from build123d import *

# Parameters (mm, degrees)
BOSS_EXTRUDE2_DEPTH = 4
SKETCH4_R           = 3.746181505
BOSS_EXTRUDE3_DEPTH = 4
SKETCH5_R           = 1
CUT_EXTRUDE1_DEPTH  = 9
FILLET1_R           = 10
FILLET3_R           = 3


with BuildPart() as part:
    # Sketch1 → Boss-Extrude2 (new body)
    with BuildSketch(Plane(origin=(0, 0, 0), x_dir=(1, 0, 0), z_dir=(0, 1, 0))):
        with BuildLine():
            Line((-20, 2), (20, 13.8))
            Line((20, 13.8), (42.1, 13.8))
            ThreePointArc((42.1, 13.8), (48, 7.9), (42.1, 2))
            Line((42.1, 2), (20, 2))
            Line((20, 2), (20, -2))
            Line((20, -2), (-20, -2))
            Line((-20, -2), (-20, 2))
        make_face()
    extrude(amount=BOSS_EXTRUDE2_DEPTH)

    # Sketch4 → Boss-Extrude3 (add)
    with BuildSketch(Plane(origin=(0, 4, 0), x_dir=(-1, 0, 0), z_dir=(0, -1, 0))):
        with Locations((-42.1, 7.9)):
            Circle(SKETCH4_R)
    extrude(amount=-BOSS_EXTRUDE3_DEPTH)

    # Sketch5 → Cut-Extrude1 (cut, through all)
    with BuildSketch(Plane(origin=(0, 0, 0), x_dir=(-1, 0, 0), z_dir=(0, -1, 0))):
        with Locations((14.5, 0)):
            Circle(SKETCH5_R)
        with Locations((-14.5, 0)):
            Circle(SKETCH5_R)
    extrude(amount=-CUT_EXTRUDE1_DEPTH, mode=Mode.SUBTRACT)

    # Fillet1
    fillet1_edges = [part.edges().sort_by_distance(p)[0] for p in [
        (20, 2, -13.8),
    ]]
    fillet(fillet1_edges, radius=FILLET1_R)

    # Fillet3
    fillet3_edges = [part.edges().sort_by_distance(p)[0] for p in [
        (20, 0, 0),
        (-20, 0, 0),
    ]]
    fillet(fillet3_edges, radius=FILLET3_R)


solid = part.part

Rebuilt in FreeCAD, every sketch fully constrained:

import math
import FreeCAD as App
import Part
import Sketcher

V = App.Vector
Q = App.Units.Quantity


def edges_at(feature, points):
    """Names of the edges that pass closest to the given points."""
    edges = feature.Shape.Edges
    near = lambda p: min(range(len(edges)), key=lambda i: edges[i].distToShape(Part.Vertex(*p))[0])
    return sorted({f"Edge{near(p) + 1}" for p in points})

doc = App.newDocument("Part")
body = doc.addObject("PartDesign::Body", "Body")

sketch1 = body.newObject("Sketcher::SketchObject", "Sketch")
sketch1.AttachmentSupport = (doc.getObject("XZ_Plane"), [""])
sketch1.MapMode = "FlatFace"
sketch1.addGeometry([
    Part.LineSegment(V(20, -13.8, 0), V(-20, -2, 0)),
    Part.LineSegment(V(-20, -2, 0), V(-20, 2, 0)),
    Part.LineSegment(V(-20, 2, 0), V(20, 2, 0)),
    Part.LineSegment(V(20, 2, 0), V(20, -2, 0)),
    Part.LineSegment(V(20, -2, 0), V(42.1, -2, 0)),
    Part.ArcOfCircle(Part.Circle(V(42.1, -7.9, 0), V(0, 0, 1), 5.9), math.radians(-90), math.radians(90)),
    Part.LineSegment(V(42.1, -13.8, 0), V(20, -13.8, 0)),
], False)
sketch1.addConstraint([
    Sketcher.Constraint("Coincident", 0, 2, 1, 1),
    Sketcher.Constraint("Coincident", 1, 2, 2, 1),
    Sketcher.Constraint("Coincident", 2, 2, 3, 1),
    Sketcher.Constraint("Coincident", 3, 2, 4, 1),
    Sketcher.Constraint("Tangent", 4, 2, 5, 2),
    Sketcher.Constraint("Tangent", 5, 1, 6, 1),
    Sketcher.Constraint("Coincident", 6, 2, 0, 1),
    Sketcher.Constraint("Vertical", 1),
    Sketcher.Constraint("Horizontal", 2),
    Sketcher.Constraint("Vertical", 3),
    Sketcher.Constraint("Horizontal", 4),
    Sketcher.Constraint("Horizontal", 6),
    Sketcher.Constraint("Symmetric", 0, 2, 2, 2, -1, 1),
    Sketcher.Constraint("Horizontal", 0, 2, 3, 2),
    Sketcher.Constraint("Vertical", 3, 2, 6, 2),
    Sketcher.Constraint("Radius", 5, Q("5.9 mm")),
    Sketcher.Constraint("DistanceX", 2, 1, 2, 2, Q("40 mm")),
    Sketcher.Constraint("DistanceY", 1, 1, 1, 2, Q("4 mm")),
    Sketcher.Constraint("DistanceX", 4, 1, 4, 2, Q("22.1 mm")),
])
pad1 = body.newObject("PartDesign::Pad", "Pad")
pad1.Profile = sketch1
pad1.Length = 4
pad1.Reversed = True

sketch2 = body.newObject("Sketcher::SketchObject", "Sketch001")
sketch2.AttachmentSupport = (doc.getObject("XZ_Plane"), [""])
sketch2.MapMode = "FlatFace"
sketch2.AttachmentOffset = App.Placement(V(0, 0, -4), App.Rotation())
sketch2.addGeometry(Part.Circle(V(42.1, -7.9, 0), V(0, 0, 1), 3.7), False)
sketch2.addConstraint([
    Sketcher.Constraint("DistanceX", -1, 1, 0, 3, Q("42.1 mm")),
    Sketcher.Constraint("DistanceY", 0, 3, -1, 1, Q("7.9 mm")),
    Sketcher.Constraint("Diameter", 0, Q("7.492363 mm")),
])
pad2 = body.newObject("PartDesign::Pad", "Pad001")
pad2.Profile = sketch2
pad2.Length = 4
pad2.Reversed = True

sketch3 = body.newObject("Sketcher::SketchObject", "Sketch002")
sketch3.AttachmentSupport = (doc.getObject("XZ_Plane"), [""])
sketch3.MapMode = "FlatFace"
sketch3.addGeometry([
    Part.Circle(V(-14.5, 0, 0), V(0, 0, 1), 1),
    Part.Circle(V(14.5, 0, 0), V(0, 0, 1), 1),
], False)
sketch3.addConstraint([
    Sketcher.Constraint("Equal", 0, 1),
    Sketcher.Constraint("Symmetric", 0, 3, 1, 3, -1, 1),
    Sketcher.Constraint("PointOnObject", 0, 3, -1),
    Sketcher.Constraint("Diameter", 0, Q("2 mm")),
    Sketcher.Constraint("DistanceX", 0, 3, 1, 3, Q("29 mm")),
])
pocket1 = body.newObject("PartDesign::Pocket", "Pocket")
pocket1.Profile = sketch3
pocket1.Type = "ThroughAll"
doc.recompute()

fillet = body.newObject("PartDesign::Fillet", "Fillet")
fillet.Base = (pocket1, edges_at(pocket1, [(20, 2, -13.8)]))
fillet.Radius = 10
doc.recompute()

fillet2 = body.newObject("PartDesign::Fillet", "Fillet001")
fillet2.Base = (fillet, edges_at(fillet, [(20, 0, 0), (-20, 0, 0)]))
fillet2.Radius = 3

doc.recompute()
